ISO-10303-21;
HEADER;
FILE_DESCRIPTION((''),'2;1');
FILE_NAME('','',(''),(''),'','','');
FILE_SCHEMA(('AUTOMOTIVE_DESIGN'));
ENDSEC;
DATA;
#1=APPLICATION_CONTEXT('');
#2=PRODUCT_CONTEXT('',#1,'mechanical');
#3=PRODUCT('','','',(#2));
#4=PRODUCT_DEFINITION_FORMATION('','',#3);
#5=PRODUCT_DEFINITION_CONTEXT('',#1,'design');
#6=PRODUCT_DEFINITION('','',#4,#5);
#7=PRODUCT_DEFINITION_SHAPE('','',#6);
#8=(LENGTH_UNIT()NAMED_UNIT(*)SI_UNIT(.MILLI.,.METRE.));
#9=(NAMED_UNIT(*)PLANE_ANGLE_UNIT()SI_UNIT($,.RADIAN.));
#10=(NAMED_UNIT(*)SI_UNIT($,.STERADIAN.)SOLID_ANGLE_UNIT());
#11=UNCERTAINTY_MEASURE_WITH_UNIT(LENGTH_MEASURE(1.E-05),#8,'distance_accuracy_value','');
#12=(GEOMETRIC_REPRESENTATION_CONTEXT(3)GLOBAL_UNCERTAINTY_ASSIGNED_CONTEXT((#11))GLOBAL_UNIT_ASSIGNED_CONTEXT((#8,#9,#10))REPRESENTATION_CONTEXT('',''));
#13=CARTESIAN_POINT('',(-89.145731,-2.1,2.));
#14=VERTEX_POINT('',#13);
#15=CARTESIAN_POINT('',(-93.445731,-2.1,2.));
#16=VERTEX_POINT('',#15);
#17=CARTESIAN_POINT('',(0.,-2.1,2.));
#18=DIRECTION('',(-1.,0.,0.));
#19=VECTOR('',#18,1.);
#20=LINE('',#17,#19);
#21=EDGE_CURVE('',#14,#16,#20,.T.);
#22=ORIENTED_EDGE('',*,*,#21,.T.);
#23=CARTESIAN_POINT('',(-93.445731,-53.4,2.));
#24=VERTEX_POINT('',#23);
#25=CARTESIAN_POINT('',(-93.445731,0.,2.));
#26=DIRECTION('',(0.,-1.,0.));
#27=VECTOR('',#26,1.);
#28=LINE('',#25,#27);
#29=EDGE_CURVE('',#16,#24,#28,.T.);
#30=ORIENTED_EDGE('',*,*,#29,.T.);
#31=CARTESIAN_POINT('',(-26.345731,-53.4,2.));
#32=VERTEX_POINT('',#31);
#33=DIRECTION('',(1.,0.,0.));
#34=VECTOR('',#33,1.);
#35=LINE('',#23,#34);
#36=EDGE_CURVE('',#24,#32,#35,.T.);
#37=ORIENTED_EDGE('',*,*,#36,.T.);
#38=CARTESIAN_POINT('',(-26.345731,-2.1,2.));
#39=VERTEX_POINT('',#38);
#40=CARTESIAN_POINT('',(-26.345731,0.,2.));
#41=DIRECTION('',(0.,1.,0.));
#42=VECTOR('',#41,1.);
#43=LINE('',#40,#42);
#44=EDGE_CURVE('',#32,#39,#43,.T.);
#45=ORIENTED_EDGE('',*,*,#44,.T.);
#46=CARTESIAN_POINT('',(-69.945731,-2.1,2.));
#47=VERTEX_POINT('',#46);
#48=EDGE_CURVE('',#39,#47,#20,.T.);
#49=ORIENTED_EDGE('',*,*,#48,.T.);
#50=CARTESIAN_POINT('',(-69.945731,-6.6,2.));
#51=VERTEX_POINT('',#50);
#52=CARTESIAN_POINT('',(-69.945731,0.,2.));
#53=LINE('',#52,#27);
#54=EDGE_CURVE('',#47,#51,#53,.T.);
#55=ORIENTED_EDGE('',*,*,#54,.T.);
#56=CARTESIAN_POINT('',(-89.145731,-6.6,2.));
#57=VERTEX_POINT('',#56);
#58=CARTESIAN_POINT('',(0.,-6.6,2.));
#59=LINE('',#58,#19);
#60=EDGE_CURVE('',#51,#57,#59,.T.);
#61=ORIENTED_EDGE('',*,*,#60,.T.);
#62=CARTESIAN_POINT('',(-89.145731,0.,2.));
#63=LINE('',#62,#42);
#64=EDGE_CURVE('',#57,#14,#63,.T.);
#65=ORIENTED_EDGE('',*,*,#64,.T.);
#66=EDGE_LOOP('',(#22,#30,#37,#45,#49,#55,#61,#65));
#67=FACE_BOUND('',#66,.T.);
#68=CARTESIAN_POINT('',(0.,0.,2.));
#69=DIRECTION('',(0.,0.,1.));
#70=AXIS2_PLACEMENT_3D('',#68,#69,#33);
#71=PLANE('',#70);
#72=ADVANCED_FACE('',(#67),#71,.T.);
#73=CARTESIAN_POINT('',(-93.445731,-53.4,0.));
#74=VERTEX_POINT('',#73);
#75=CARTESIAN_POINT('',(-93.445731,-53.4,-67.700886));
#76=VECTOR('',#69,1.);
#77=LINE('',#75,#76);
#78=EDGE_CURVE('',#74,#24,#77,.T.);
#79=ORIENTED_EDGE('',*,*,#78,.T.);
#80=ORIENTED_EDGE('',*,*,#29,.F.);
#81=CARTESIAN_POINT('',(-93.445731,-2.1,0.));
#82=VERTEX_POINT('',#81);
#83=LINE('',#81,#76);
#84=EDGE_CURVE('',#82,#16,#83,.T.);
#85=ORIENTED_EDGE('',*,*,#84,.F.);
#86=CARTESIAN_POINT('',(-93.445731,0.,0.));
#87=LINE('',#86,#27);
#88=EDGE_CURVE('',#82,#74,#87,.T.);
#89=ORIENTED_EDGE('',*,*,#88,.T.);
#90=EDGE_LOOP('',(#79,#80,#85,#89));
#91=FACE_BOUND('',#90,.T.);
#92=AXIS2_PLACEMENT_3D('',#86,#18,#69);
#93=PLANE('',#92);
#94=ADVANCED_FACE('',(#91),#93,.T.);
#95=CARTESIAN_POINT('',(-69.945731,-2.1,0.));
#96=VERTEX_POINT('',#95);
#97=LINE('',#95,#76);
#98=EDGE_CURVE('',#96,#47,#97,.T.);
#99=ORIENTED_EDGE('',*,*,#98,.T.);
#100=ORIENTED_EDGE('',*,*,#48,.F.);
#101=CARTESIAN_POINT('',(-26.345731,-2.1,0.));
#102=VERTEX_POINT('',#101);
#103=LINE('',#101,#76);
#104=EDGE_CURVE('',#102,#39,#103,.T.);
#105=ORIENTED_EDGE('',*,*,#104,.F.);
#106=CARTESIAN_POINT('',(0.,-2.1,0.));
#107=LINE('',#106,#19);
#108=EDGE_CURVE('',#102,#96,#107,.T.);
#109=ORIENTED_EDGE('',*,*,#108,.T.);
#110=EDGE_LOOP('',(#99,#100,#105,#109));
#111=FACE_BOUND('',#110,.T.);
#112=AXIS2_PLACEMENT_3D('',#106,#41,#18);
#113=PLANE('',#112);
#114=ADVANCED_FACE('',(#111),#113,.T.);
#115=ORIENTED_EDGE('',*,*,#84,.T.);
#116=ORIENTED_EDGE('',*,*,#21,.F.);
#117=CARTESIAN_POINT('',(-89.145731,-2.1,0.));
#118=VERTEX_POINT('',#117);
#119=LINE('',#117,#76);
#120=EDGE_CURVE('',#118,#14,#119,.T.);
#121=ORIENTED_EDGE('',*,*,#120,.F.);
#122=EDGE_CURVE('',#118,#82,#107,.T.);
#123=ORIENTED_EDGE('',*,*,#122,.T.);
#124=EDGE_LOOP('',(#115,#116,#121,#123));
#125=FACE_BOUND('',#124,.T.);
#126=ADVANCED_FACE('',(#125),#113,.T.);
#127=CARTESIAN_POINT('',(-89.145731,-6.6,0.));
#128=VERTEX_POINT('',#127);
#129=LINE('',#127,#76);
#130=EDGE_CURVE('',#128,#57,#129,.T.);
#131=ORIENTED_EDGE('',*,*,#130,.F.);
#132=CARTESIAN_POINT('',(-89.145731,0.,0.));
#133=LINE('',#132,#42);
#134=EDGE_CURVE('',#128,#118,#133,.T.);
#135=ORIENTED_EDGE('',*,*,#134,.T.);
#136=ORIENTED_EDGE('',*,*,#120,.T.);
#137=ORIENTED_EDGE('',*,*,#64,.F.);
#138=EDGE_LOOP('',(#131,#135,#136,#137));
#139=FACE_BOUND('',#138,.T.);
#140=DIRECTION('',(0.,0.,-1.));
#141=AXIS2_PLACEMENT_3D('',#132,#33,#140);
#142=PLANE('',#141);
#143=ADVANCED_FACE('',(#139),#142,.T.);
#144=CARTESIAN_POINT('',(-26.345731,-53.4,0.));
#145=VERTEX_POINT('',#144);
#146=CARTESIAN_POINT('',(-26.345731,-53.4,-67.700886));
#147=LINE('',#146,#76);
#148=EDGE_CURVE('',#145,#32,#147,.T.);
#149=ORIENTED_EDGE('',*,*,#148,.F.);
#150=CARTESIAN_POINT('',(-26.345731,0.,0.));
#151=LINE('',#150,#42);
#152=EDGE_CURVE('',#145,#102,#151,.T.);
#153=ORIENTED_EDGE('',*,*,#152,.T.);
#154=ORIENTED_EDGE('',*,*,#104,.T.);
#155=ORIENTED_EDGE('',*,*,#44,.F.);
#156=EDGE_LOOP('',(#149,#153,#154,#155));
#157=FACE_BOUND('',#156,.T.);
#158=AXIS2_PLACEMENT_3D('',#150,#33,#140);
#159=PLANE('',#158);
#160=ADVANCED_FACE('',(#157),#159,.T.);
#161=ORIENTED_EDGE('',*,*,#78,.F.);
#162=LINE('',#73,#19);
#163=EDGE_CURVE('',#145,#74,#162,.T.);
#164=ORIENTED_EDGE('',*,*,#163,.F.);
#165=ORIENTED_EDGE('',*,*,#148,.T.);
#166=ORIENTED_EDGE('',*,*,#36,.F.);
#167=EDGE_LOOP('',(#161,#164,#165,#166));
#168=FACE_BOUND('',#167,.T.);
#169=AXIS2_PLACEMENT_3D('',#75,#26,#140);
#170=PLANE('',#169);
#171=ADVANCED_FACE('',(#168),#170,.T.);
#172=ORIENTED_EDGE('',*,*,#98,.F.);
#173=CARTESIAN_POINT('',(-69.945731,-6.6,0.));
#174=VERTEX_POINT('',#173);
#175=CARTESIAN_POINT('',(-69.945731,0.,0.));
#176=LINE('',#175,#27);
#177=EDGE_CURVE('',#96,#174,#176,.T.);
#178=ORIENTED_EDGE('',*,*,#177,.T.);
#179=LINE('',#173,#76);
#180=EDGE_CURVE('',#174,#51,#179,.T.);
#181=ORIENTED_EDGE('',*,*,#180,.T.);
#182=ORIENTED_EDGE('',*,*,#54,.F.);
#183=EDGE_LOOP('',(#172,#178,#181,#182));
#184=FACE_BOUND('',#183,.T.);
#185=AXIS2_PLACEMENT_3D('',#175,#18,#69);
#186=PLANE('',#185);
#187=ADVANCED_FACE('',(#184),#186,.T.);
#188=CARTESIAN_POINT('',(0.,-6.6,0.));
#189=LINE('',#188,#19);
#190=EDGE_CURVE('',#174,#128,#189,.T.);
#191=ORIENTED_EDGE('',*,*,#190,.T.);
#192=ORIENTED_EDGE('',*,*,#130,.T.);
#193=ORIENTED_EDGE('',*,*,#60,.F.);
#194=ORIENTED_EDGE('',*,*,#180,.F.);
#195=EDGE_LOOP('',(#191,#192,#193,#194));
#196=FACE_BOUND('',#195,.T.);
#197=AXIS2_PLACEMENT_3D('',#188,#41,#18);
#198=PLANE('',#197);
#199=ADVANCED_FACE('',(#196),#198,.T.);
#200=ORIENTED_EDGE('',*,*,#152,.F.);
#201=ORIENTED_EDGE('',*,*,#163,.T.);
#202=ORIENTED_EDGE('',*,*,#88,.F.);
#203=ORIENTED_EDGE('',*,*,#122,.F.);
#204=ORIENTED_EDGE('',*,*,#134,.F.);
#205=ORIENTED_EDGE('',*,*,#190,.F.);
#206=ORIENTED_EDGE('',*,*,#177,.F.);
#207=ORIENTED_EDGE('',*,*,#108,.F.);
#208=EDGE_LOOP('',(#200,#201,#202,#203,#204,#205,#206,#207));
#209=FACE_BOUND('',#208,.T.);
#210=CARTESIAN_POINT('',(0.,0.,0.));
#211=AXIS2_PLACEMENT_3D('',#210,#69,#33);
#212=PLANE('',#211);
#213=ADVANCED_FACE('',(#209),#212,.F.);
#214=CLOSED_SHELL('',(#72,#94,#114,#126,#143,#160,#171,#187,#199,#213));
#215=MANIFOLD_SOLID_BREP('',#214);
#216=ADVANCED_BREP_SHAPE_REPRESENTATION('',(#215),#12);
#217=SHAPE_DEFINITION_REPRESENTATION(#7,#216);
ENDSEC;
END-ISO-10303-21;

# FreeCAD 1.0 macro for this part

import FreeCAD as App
import Part
import Sketcher
Q = App.Units.Quantity

doc = App.newDocument("Part")
body = doc.addObject("PartDesign::Body", "Body")

# Sketch on XY plane
sketch1 = doc.addObject("Sketcher::SketchObject", "Sketch")
body.addObject(sketch1)
sketch1.AttachmentSupport = (doc.XY_Plane, [""])
sketch1.MapMode = "FlatFace"
sketch1.addGeometry(Part.LineSegment(App.Vector(-88.9, -6.4, 0), App.Vector(-88.9, -1.9, 0)), False)
sketch1.addGeometry(Part.LineSegment(App.Vector(-88.9, -1.9, 0), App.Vector(-93.6, -1.9, 0)), False)
sketch1.addGeometry(Part.LineSegment(App.Vector(-93.6, -1.9, 0), App.Vector(-93.6, -44.6, 0)), False)
sketch1.addGeometry(Part.LineSegment(App.Vector(-93.6, -44.6, 0), App.Vector(-26.1, -44.6, 0)), False)
sketch1.addGeometry(Part.LineSegment(App.Vector(-26.1, -44.6, 0), App.Vector(-26.1, -1.9, 0)), False)
sketch1.addGeometry(Part.LineSegment(App.Vector(-26.1, -1.9, 0), App.Vector(-70.1, -1.9, 0)), False)
sketch1.addGeometry(Part.LineSegment(App.Vector(-70.1, -1.9, 0), App.Vector(-70.1, -6.4, 0)), False)
sketch1.addGeometry(Part.LineSegment(App.Vector(-70.1, -6.4, 0), App.Vector(-88.9, -6.4, 0)), False)
sketch1.addConstraint(Sketcher.Constraint("Coincident", 0, 2, 1, 1))
sketch1.addConstraint(Sketcher.Constraint("Coincident", 1, 2, 2, 1))
sketch1.addConstraint(Sketcher.Constraint("Coincident", 2, 2, 3, 1))
sketch1.addConstraint(Sketcher.Constraint("Coincident", 3, 2, 4, 1))
sketch1.addConstraint(Sketcher.Constraint("Coincident", 4, 2, 5, 1))
sketch1.addConstraint(Sketcher.Constraint("Coincident", 5, 2, 6, 1))
sketch1.addConstraint(Sketcher.Constraint("Coincident", 6, 2, 7, 1))
sketch1.addConstraint(Sketcher.Constraint("Coincident", 7, 2, 0, 1))
sketch1.addConstraint(Sketcher.Constraint("Vertical", 0))
sketch1.addConstraint(Sketcher.Constraint("Horizontal", 1))
sketch1.addConstraint(Sketcher.Constraint("Vertical", 2))
sketch1.addConstraint(Sketcher.Constraint("Horizontal", 3))
sketch1.addConstraint(Sketcher.Constraint("Vertical", 4))
sketch1.addConstraint(Sketcher.Constraint("Horizontal", 5))
sketch1.addConstraint(Sketcher.Constraint("Vertical", 6))
sketch1.addConstraint(Sketcher.Constraint("Horizontal", 7))
sketch1.addConstraint(Sketcher.Constraint("Horizontal", 1, 2, 4, 2))
sketch1.addConstraint(Sketcher.Constraint("DistanceX", 5, 2, 5, 1, Q("44 mm")))
sketch1.addConstraint(Sketcher.Constraint("DistanceX", 1, 2, 1, 1, Q("4.7 mm")))
sketch1.addConstraint(Sketcher.Constraint("DistanceX", 3, 1, 3, 2, Q("67.5 mm")))
sketch1.addConstraint(Sketcher.Constraint("DistanceY", 0, 1, 0, 2, Q("4.5 mm")))
sketch1.addConstraint(Sketcher.Constraint("DistanceY", 2, 2, 2, 1, Q("42.7 mm")))
sketch1.addConstraint(Sketcher.Constraint("DistanceY", 0, 2, -1, 1, Q("1.9 mm")))
sketch1.addConstraint(Sketcher.Constraint("DistanceX", 0, 2, -1, 1, Q("88.945731 mm")))
pad1 = doc.addObject("PartDesign::Pad", "Pad")
body.addObject(pad1)
pad1.Profile = sketch1
pad1.Length = 2

# Sketch on XY plane
sketch2 = doc.addObject("Sketcher::SketchObject", "Sketch001")
body.addObject(sketch2)
sketch2.AttachmentSupport = (doc.XY_Plane, [""])
sketch2.MapMode = "FlatFace"
sketch2.AttachmentOffset = App.Placement(App.Vector(0, 0, 2), App.Rotation())
sketch2.addGeometry(Part.LineSegment(App.Vector(-88.9, -1.9, 0), App.Vector(-93.6, -1.9, 0)), False)
sketch2.addGeometry(Part.LineSegment(App.Vector(-93.6, -1.9, 0), App.Vector(-93.6, -44.6, 0)), False)
sketch2.addGeometry(Part.LineSegment(App.Vector(-93.6, -44.6, 0), App.Vector(-26.1, -44.6, 0)), False)
sketch2.addGeometry(Part.LineSegment(App.Vector(-26.1, -44.6, 0), App.Vector(-26.1, -1.9, 0)), False)
sketch2.addGeometry(Part.LineSegment(App.Vector(-26.1, -1.9, 0), App.Vector(-70.1, -1.9, 0)), False)
sketch2.addGeometry(Part.LineSegment(App.Vector(-70.1, -1.9, 0), App.Vector(-70.1, -6.4, 0)), False)
sketch2.addGeometry(Part.LineSegment(App.Vector(-70.1, -6.4, 0), App.Vector(-88.9, -6.4, 0)), False)
sketch2.addGeometry(Part.LineSegment(App.Vector(-88.9, -6.4, 0), App.Vector(-88.9, -1.9, 0)), False)
sketch2.addGeometry(Part.LineSegment(App.Vector(-93.4, -2.1, 0), App.Vector(-89.1, -2.1, 0)), False)
sketch2.addGeometry(Part.LineSegment(App.Vector(-89.1, -2.1, 0), App.Vector(-89.1, -6.6, 0)), False)
sketch2.addGeometry(Part.LineSegment(App.Vector(-89.1, -6.6, 0), App.Vector(-69.9, -6.6, 0)), False)
sketch2.addGeometry(Part.LineSegment(App.Vector(-69.9, -6.6, 0), App.Vector(-69.9, -2.1, 0)), False)
sketch2.addGeometry(Part.LineSegment(App.Vector(-69.9, -2.1, 0), App.Vector(-26.3, -2.1, 0)), False)
sketch2.addGeometry(Part.LineSegment(App.Vector(-26.3, -2.1, 0), App.Vector(-26.3, -44.4, 0)), False)
sketch2.addGeometry(Part.LineSegment(App.Vector(-26.3, -44.4, 0), App.Vector(-93.4, -44.4, 0)), False)
sketch2.addGeometry(Part.LineSegment(App.Vector(-93.4, -44.4, 0), App.Vector(-93.4, -2.1, 0)), False)
sketch2.addConstraint(Sketcher.Constraint("Coincident", 0, 2, 1, 1))
sketch2.addConstraint(Sketcher.Constraint("Coincident", 1, 2, 2, 1))
sketch2.addConstraint(Sketcher.Constraint("Coincident", 2, 2, 3, 1))
sketch2.addConstraint(Sketcher.Constraint("Coincident", 3, 2, 4, 1))
sketch2.addConstraint(Sketcher.Constraint("Coincident", 4, 2, 5, 1))
sketch2.addConstraint(Sketcher.Constraint("Coincident", 5, 2, 6, 1))
sketch2.addConstraint(Sketcher.Constraint("Coincident", 6, 2, 7, 1))
sketch2.addConstraint(Sketcher.Constraint("Coincident", 7, 2, 0, 1))
sketch2.addConstraint(Sketcher.Constraint("Coincident", 8, 2, 9, 1))
sketch2.addConstraint(Sketcher.Constraint("Coincident", 9, 2, 10, 1))
sketch2.addConstraint(Sketcher.Constraint("Coincident", 10, 2, 11, 1))
sketch2.addConstraint(Sketcher.Constraint("Coincident", 11, 2, 12, 1))
sketch2.addConstraint(Sketcher.Constraint("Coincident", 12, 2, 13, 1))
sketch2.addConstraint(Sketcher.Constraint("Coincident", 13, 2, 14, 1))
sketch2.addConstraint(Sketcher.Constraint("Coincident", 14, 2, 15, 1))
sketch2.addConstraint(Sketcher.Constraint("Coincident", 15, 2, 8, 1))
sketch2.addConstraint(Sketcher.Constraint("Horizontal", 0))
sketch2.addConstraint(Sketcher.Constraint("Vertical", 1))
sketch2.addConstraint(Sketcher.Constraint("Horizontal", 2))
sketch2.addConstraint(Sketcher.Constraint("Vertical", 3))
sketch2.addConstraint(Sketcher.Constraint("Horizontal", 4))
sketch2.addConstraint(Sketcher.Constraint("Vertical", 5))
sketch2.addConstraint(Sketcher.Constraint("Horizontal", 6))
sketch2.addConstraint(Sketcher.Constraint("Vertical", 7))
sketch2.addConstraint(Sketcher.Constraint("Horizontal", 8))
sketch2.addConstraint(Sketcher.Constraint("Vertical", 9))
sketch2.addConstraint(Sketcher.Constraint("Horizontal", 10))
sketch2.addConstraint(Sketcher.Constraint("Vertical", 11))
sketch2.addConstraint(Sketcher.Constraint("Horizontal", 12))
sketch2.addConstraint(Sketcher.Constraint("Vertical", 13))
sketch2.addConstraint(Sketcher.Constraint("Horizontal", 14))
sketch2.addConstraint(Sketcher.Constraint("Vertical", 15))
sketch2.addConstraint(Sketcher.Constraint("Horizontal", 0, 2, 3, 2))
sketch2.addConstraint(Sketcher.Constraint("Horizontal", 8, 2, 11, 2))
sketch2.addConstraint(Sketcher.Constraint("Equal", 7, 9))
sketch2.addConstraint(Sketcher.Constraint("DistanceX", 4, 2, 4, 1, Q("44 mm")))
sketch2.addConstraint(Sketcher.Constraint("DistanceX", 0, 2, 0, 1, Q("4.7 mm")))
sketch2.addConstraint(Sketcher.Constraint("DistanceX", 2, 1, 2, 2, Q("67.5 mm")))
sketch2.addConstraint(Sketcher.Constraint("DistanceX", 8, 1, 8, 2, Q("4.3 mm")))
sketch2.addConstraint(Sketcher.Constraint("DistanceX", 10, 1, 10, 2, Q("19.2 mm")))
sketch2.addConstraint(Sketcher.Constraint("DistanceX", 12, 1, 12, 2, Q("43.6 mm")))
sketch2.addConstraint(Sketcher.Constraint("DistanceY", 1, 2, 1, 1, Q("42.7 mm")))
sketch2.addConstraint(Sketcher.Constraint("DistanceY", 5, 2, 5, 1, Q("4.5 mm")))
sketch2.addConstraint(Sketcher.Constraint("DistanceY", 13, 2, 13, 1, Q("42.3 mm")))
sketch2.addConstraint(Sketcher.Constraint("DistanceX", 8, 2, 4, 2, Q("19 mm")))
sketch2.addConstraint(Sketcher.Constraint("DistanceY", 13, 2, 5, 2, Q("38 mm")))
sketch2.addConstraint(Sketcher.Constraint("DistanceY", 0, 2, -1, 1, Q("1.9 mm")))
sketch2.addConstraint(Sketcher.Constraint("DistanceX", 0, 2, -1, 1, Q("93.645731 mm")))
pocket1 = doc.addObject("PartDesign::Pocket", "Pocket")
body.addObject(pocket1)
pocket1.Profile = sketch2
pocket1.Type = "ThroughAll"

# Sketch on XY plane
sketch3 = doc.addObject("Sketcher::SketchObject", "Sketch002")
body.addObject(sketch3)
sketch3.AttachmentSupport = (doc.XY_Plane, [""])
sketch3.MapMode = "FlatFace"
sketch3.AttachmentOffset = App.Placement(App.Vector(0, 0, 2), App.Rotation())
sketch3.addGeometry(Part.LineSegment(App.Vector(-93, -44, 0), App.Vector(-93, -53, 0)), False)
sketch3.addGeometry(Part.LineSegment(App.Vector(-93, -53, 0), App.Vector(-26, -53, 0)), False)
sketch3.addGeometry(Part.LineSegment(App.Vector(-26, -53, 0), App.Vector(-26, -44, 0)), False)
sketch3.addGeometry(Part.LineSegment(App.Vector(-26, -44, 0), App.Vector(-93, -44, 0)), False)
sketch3.addConstraint(Sketcher.Constraint("Coincident", 0, 2, 1, 1))
sketch3.addConstraint(Sketcher.Constraint("Coincident", 1, 2, 2, 1))
sketch3.addConstraint(Sketcher.Constraint("Coincident", 2, 2, 3, 1))
sketch3.addConstraint(Sketcher.Constraint("Coincident", 3, 2, 0, 1))
sketch3.addConstraint(Sketcher.Constraint("Vertical", 0))
sketch3.addConstraint(Sketcher.Constraint("Horizontal", 1))
sketch3.addConstraint(Sketcher.Constraint("Vertical", 2))
sketch3.addConstraint(Sketcher.Constraint("Horizontal", 3))
sketch3.addConstraint(Sketcher.Constraint("DistanceY", 0, 2, 0, 1, Q("9 mm")))
sketch3.addConstraint(Sketcher.Constraint("DistanceX", 1, 1, 1, 2, Q("67.1 mm")))
sketch3.addConstraint(Sketcher.Constraint("DistanceY", 0, 2, -1, 1, Q("53.4 mm")))
sketch3.addConstraint(Sketcher.Constraint("DistanceX", 0, 2, -1, 1, Q("93.445731 mm")))
pad2 = doc.addObject("PartDesign::Pad", "Pad001")
body.addObject(pad2)
pad2.Profile = sketch3
pad2.Length = 2
pad2.Reversed = True

doc.recompute()
